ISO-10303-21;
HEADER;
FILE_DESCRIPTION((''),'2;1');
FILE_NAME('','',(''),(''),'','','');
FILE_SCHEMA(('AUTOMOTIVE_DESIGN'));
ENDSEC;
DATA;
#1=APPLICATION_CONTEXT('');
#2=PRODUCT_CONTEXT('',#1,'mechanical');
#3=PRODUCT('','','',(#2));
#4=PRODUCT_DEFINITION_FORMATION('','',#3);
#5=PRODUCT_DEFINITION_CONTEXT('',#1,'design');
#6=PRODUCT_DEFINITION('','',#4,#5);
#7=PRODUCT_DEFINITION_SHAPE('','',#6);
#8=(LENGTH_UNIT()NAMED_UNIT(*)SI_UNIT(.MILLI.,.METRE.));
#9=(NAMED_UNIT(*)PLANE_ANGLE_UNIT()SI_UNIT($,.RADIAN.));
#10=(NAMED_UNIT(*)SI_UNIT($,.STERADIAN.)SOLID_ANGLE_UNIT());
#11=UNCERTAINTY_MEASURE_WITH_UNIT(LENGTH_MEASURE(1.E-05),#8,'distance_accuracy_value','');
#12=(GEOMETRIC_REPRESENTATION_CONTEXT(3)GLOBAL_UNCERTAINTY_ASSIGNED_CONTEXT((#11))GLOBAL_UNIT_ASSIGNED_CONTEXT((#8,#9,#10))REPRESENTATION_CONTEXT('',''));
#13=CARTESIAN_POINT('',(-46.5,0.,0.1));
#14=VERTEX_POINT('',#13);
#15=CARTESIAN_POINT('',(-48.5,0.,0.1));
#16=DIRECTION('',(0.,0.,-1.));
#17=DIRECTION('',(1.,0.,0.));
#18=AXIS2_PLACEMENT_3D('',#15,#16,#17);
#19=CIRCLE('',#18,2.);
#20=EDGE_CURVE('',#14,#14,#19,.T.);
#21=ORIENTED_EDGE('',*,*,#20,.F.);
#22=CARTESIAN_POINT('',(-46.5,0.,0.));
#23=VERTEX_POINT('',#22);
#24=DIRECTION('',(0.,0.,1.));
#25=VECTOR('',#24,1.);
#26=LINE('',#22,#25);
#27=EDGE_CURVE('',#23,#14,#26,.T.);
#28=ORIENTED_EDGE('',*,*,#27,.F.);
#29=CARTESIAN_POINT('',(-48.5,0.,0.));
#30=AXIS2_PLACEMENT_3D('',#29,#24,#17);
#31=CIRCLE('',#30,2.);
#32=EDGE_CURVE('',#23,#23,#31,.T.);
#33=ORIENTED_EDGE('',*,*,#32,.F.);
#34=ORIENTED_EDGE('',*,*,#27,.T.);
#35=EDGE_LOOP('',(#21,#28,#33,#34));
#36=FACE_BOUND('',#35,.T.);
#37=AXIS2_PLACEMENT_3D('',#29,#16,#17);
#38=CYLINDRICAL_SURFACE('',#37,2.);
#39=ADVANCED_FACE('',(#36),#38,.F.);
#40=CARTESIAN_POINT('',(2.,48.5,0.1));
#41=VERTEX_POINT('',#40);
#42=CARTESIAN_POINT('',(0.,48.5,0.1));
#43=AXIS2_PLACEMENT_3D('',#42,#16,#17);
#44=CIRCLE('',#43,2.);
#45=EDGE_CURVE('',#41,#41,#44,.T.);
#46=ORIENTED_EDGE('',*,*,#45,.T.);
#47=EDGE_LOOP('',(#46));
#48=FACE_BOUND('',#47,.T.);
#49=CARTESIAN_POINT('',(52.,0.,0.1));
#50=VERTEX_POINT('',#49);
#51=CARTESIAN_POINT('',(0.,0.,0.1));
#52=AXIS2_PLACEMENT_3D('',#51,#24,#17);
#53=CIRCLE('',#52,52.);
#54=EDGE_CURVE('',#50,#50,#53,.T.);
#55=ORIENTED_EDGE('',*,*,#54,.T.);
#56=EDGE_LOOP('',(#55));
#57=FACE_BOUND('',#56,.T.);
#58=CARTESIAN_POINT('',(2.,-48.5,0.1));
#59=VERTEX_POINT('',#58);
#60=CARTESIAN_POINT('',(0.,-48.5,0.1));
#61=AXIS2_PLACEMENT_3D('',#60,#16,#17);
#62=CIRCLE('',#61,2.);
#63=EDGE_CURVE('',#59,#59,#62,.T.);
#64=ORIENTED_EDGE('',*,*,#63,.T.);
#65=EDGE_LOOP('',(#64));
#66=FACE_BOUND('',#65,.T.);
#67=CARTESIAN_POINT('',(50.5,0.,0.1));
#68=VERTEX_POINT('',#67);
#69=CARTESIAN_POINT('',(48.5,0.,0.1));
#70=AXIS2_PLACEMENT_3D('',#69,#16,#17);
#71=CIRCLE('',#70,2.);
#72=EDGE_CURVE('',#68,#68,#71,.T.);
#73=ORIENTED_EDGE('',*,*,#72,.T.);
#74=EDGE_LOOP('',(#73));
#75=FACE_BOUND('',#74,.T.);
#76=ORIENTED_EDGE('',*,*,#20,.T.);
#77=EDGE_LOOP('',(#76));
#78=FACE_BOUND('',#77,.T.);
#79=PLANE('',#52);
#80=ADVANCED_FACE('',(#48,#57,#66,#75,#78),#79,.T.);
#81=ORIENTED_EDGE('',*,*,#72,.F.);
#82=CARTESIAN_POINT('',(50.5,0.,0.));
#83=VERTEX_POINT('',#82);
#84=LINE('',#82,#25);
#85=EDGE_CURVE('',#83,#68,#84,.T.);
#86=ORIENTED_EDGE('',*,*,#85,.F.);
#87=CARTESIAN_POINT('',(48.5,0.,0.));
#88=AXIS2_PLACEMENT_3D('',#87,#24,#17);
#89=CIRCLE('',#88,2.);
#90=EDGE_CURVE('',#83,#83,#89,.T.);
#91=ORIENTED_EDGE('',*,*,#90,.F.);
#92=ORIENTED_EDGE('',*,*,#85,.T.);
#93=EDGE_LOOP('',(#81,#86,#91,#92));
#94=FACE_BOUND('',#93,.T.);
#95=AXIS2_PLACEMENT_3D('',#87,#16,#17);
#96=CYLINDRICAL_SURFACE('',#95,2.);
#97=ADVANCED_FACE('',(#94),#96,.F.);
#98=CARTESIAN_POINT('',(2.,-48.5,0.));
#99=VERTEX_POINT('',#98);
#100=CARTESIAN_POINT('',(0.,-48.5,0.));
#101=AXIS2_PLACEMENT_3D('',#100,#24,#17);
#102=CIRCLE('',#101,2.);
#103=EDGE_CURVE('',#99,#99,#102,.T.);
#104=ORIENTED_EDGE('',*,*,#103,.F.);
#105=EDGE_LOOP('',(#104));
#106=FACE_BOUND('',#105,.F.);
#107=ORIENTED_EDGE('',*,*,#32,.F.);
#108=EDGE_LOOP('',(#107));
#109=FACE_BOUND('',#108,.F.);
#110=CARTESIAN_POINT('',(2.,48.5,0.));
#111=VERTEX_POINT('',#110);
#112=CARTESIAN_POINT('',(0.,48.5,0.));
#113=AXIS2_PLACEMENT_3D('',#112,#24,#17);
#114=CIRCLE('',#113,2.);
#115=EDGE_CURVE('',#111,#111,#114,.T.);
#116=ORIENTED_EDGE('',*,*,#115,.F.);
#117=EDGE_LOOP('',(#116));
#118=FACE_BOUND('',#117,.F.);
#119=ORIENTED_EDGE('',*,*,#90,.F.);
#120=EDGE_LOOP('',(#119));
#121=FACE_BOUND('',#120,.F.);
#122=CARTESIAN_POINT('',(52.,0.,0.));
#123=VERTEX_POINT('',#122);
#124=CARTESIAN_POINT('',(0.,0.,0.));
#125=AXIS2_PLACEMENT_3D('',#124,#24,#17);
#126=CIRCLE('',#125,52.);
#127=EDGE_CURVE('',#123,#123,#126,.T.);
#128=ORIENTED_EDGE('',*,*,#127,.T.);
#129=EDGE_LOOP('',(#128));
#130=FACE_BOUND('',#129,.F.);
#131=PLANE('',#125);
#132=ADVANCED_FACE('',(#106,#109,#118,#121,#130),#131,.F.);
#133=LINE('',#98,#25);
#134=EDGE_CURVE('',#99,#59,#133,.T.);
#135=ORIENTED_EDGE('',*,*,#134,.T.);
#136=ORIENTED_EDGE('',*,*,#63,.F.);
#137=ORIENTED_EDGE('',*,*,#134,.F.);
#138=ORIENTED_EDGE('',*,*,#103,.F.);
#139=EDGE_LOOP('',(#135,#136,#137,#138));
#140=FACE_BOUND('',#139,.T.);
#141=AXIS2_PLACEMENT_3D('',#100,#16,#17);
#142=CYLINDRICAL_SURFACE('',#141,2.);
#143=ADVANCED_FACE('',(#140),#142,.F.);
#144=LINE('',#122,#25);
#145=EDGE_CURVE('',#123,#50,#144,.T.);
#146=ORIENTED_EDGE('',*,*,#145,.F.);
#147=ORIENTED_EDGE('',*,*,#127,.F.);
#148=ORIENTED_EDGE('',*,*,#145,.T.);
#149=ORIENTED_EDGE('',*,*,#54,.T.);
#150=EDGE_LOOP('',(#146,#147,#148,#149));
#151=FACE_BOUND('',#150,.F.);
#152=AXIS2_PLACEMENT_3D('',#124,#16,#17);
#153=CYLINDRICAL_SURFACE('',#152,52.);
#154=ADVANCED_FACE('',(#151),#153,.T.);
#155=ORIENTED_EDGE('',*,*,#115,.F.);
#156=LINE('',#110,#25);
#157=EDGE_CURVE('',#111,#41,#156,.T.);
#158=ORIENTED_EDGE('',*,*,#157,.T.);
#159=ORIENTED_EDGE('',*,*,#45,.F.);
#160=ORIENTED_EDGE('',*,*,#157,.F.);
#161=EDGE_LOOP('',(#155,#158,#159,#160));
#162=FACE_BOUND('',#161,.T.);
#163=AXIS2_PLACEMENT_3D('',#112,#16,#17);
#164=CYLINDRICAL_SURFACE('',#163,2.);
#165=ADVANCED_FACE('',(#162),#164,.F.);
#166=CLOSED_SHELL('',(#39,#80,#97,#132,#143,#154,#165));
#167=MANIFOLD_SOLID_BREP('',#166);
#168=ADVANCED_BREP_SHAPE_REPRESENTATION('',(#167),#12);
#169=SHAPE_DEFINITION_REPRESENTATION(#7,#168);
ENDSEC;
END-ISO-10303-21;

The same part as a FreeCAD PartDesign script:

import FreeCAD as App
import Part
import Sketcher

V = App.Vector
Q = App.Units.Quantity

doc = App.newDocument("Part")
body = doc.addObject("PartDesign::Body", "Body")

# Sketch on XY plane
sketch1 = body.newObject("Sketcher::SketchObject", "Sketch")
sketch1.AttachmentSupport = (doc.getObject("XY_Plane"), [""])
sketch1.MapMode = "FlatFace"
sketch1.addGeometry(Part.Circle(V(0, 0, 0), V(0, 0, 1), 52), False)
sketch1.addConstraint(Sketcher.Constraint("Coincident", 0, 3, -1, 1))
sketch1.addConstraint(Sketcher.Constraint("Diameter", 0, Q("104 mm")))
pad1 = body.newObject("PartDesign::Pad", "Pad")
pad1.Profile = sketch1
pad1.Length = 0.1

# Sketch on XY plane
sketch2 = body.newObject("Sketcher::SketchObject", "Sketch001")
sketch2.AttachmentSupport = (doc.getObject("XY_Plane"), [""])
sketch2.MapMode = "FlatFace"
sketch2.addGeometry(Part.Circle(V(48.5, 0, 0), V(0, 0, 1), 2), False)
sketch2.addGeometry(Part.Circle(V(0, 48.5, 0), V(0, 0, 1), 2), False)
sketch2.addGeometry(Part.Circle(V(-48.5, 0, 0), V(0, 0, 1), 2), False)
sketch2.addGeometry(Part.Circle(V(0, -48.5, 0), V(0, 0, 1), 2), False)
sketch2.addConstraint(Sketcher.Constraint("Equal", 0, 1))
sketch2.addConstraint(Sketcher.Constraint("Equal", 1, 2))
sketch2.addConstraint(Sketcher.Constraint("Equal", 2, 3))
sketch2.addConstraint(Sketcher.Constraint("Symmetric", 0, 3, 2, 3, -1, 1))
sketch2.addConstraint(Sketcher.Constraint("Symmetric", 1, 3, 3, 3, -1, 1))
sketch2.addConstraint(Sketcher.Constraint("PointOnObject", 0, 3, -1))
sketch2.addConstraint(Sketcher.Constraint("PointOnObject", 1, 3, -2))
sketch2.addConstraint(Sketcher.Constraint("Diameter", 0, Q("4 mm")))
sketch2.addConstraint(Sketcher.Constraint("DistanceX", 2, 3, 0, 3, Q("97 mm")))
sketch2.addConstraint(Sketcher.Constraint("DistanceY", 3, 3, 1, 3, Q("97 mm")))
pocket1 = body.newObject("PartDesign::Pocket", "Pocket")
pocket1.Profile = sketch2
pocket1.Type = "ThroughAll"
pocket1.Reversed = True

doc.recompute()
